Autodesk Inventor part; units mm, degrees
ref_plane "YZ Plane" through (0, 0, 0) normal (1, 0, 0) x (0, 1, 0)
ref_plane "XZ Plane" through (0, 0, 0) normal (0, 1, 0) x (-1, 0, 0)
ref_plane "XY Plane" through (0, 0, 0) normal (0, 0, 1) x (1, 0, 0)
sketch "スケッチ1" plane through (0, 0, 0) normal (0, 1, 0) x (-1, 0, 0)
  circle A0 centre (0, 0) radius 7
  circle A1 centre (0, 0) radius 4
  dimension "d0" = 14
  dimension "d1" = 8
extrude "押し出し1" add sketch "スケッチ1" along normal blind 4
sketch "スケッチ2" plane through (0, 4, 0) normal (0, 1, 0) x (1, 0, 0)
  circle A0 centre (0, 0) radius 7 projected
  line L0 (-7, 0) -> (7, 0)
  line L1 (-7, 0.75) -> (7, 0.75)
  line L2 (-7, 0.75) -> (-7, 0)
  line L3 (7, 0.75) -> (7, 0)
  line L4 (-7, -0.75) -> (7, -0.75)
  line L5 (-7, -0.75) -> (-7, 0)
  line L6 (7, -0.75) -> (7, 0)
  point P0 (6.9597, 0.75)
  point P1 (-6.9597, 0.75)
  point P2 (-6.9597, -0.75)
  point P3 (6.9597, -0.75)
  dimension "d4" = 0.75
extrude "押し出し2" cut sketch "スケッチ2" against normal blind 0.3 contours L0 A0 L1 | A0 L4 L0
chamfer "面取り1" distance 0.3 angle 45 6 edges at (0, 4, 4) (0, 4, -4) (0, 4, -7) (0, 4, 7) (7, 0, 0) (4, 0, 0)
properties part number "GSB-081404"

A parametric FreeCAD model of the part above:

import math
import FreeCAD as App
import Part
import Sketcher


def edges_at(feature, points):
    """Names of the edges that pass closest to the given points."""
    edges = feature.Shape.Edges
    near = lambda p: min(range(len(edges)), key=lambda i: edges[i].distToShape(Part.Vertex(*p))[0])
    return sorted({f"Edge{near(p) + 1}" for p in points})

doc = App.newDocument("Part")
body = doc.addObject("PartDesign::Body", "Body")

# Sketch on XZ plane
sketch1 = body.newObject("Sketcher::SketchObject", "Sketch")
sketch1.AttachmentSupport = (doc.getObject("XZ_Plane"), [""])
sketch1.MapMode = "FlatFace"
sketch1.addGeometry([
    Part.Circle(App.Vector(0, 0, 0), App.Vector(0, 0, 1), 7),
    Part.Circle(App.Vector(0, 0, 0), App.Vector(0, 0, 1), 4),
], False)
sketch1.addConstraint([
    Sketcher.Constraint("Coincident", 0, 3, -1, 1),
    Sketcher.Constraint("Coincident", 1, 3, -1, 1),
    Sketcher.Constraint("Diameter", 0, 14.0),
    Sketcher.Constraint("Diameter", 1, 8.0),
])
pad1 = body.newObject("PartDesign::Pad", "Pad")
pad1.Profile = sketch1
pad1.Length = 4
pad1.Reversed = True

# Sketch on XZ plane
sketch2 = body.newObject("Sketcher::SketchObject", "Sketch001")
sketch2.AttachmentSupport = (doc.getObject("XZ_Plane"), [""])
sketch2.MapMode = "FlatFace"
sketch2.AttachmentOffset = App.Placement(App.Vector(0, 0, -4), App.Rotation())
sketch2.addGeometry([
    Part.ArcOfCircle(Part.Circle(App.Vector(0, 0, 0), App.Vector(0, 0, 1), 7), math.radians(173.85), math.radians(186.15)),
    Part.LineSegment(App.Vector(-7, 0.8, 0), App.Vector(7, 0.8, 0)),
    Part.ArcOfCircle(Part.Circle(App.Vector(0, 0, 0), App.Vector(0, 0, 1), 7), math.radians(-6.15), math.radians(6.15)),
    Part.LineSegment(App.Vector(7, -0.8, 0), App.Vector(-7, -0.8, 0)),
], False)
sketch2.addConstraint([
    Sketcher.Constraint("Coincident", 0, 1, 1, 1),
    Sketcher.Constraint("Coincident", 1, 2, 2, 2),
    Sketcher.Constraint("Coincident", 2, 1, 3, 1),
    Sketcher.Constraint("Coincident", 3, 2, 0, 2),
    Sketcher.Constraint("Horizontal", 1),
    Sketcher.Constraint("Horizontal", 3),
    Sketcher.Constraint("Coincident", 0, 3, -1, 1),
    Sketcher.Constraint("Coincident", 2, 3, -1, 1),
    Sketcher.Constraint("Equal", 0, 2),
    Sketcher.Constraint("Vertical", 1, 2, 2, 1),
    Sketcher.Constraint("Radius", 0, 7.0),
    Sketcher.Constraint("DistanceY", -1, 1, 0, 1, 0.75),
])
pocket1 = body.newObject("PartDesign::Pocket", "Pocket")
pocket1.Profile = sketch2
pocket1.Length = 0.3
pocket1.Reversed = True
doc.recompute()

chamfer = body.newObject("PartDesign::Chamfer", "Chamfer")
chamfer.Base = (pocket1, edges_at(pocket1, [
    (0, 4, 4),
    (0, 4, -4),
    (0, 4, -7),
    (0, 4, 7),
    (7, 0, 0),
    (4, 0, 0),
]))
chamfer.Size = 0.3

doc.recompute()
